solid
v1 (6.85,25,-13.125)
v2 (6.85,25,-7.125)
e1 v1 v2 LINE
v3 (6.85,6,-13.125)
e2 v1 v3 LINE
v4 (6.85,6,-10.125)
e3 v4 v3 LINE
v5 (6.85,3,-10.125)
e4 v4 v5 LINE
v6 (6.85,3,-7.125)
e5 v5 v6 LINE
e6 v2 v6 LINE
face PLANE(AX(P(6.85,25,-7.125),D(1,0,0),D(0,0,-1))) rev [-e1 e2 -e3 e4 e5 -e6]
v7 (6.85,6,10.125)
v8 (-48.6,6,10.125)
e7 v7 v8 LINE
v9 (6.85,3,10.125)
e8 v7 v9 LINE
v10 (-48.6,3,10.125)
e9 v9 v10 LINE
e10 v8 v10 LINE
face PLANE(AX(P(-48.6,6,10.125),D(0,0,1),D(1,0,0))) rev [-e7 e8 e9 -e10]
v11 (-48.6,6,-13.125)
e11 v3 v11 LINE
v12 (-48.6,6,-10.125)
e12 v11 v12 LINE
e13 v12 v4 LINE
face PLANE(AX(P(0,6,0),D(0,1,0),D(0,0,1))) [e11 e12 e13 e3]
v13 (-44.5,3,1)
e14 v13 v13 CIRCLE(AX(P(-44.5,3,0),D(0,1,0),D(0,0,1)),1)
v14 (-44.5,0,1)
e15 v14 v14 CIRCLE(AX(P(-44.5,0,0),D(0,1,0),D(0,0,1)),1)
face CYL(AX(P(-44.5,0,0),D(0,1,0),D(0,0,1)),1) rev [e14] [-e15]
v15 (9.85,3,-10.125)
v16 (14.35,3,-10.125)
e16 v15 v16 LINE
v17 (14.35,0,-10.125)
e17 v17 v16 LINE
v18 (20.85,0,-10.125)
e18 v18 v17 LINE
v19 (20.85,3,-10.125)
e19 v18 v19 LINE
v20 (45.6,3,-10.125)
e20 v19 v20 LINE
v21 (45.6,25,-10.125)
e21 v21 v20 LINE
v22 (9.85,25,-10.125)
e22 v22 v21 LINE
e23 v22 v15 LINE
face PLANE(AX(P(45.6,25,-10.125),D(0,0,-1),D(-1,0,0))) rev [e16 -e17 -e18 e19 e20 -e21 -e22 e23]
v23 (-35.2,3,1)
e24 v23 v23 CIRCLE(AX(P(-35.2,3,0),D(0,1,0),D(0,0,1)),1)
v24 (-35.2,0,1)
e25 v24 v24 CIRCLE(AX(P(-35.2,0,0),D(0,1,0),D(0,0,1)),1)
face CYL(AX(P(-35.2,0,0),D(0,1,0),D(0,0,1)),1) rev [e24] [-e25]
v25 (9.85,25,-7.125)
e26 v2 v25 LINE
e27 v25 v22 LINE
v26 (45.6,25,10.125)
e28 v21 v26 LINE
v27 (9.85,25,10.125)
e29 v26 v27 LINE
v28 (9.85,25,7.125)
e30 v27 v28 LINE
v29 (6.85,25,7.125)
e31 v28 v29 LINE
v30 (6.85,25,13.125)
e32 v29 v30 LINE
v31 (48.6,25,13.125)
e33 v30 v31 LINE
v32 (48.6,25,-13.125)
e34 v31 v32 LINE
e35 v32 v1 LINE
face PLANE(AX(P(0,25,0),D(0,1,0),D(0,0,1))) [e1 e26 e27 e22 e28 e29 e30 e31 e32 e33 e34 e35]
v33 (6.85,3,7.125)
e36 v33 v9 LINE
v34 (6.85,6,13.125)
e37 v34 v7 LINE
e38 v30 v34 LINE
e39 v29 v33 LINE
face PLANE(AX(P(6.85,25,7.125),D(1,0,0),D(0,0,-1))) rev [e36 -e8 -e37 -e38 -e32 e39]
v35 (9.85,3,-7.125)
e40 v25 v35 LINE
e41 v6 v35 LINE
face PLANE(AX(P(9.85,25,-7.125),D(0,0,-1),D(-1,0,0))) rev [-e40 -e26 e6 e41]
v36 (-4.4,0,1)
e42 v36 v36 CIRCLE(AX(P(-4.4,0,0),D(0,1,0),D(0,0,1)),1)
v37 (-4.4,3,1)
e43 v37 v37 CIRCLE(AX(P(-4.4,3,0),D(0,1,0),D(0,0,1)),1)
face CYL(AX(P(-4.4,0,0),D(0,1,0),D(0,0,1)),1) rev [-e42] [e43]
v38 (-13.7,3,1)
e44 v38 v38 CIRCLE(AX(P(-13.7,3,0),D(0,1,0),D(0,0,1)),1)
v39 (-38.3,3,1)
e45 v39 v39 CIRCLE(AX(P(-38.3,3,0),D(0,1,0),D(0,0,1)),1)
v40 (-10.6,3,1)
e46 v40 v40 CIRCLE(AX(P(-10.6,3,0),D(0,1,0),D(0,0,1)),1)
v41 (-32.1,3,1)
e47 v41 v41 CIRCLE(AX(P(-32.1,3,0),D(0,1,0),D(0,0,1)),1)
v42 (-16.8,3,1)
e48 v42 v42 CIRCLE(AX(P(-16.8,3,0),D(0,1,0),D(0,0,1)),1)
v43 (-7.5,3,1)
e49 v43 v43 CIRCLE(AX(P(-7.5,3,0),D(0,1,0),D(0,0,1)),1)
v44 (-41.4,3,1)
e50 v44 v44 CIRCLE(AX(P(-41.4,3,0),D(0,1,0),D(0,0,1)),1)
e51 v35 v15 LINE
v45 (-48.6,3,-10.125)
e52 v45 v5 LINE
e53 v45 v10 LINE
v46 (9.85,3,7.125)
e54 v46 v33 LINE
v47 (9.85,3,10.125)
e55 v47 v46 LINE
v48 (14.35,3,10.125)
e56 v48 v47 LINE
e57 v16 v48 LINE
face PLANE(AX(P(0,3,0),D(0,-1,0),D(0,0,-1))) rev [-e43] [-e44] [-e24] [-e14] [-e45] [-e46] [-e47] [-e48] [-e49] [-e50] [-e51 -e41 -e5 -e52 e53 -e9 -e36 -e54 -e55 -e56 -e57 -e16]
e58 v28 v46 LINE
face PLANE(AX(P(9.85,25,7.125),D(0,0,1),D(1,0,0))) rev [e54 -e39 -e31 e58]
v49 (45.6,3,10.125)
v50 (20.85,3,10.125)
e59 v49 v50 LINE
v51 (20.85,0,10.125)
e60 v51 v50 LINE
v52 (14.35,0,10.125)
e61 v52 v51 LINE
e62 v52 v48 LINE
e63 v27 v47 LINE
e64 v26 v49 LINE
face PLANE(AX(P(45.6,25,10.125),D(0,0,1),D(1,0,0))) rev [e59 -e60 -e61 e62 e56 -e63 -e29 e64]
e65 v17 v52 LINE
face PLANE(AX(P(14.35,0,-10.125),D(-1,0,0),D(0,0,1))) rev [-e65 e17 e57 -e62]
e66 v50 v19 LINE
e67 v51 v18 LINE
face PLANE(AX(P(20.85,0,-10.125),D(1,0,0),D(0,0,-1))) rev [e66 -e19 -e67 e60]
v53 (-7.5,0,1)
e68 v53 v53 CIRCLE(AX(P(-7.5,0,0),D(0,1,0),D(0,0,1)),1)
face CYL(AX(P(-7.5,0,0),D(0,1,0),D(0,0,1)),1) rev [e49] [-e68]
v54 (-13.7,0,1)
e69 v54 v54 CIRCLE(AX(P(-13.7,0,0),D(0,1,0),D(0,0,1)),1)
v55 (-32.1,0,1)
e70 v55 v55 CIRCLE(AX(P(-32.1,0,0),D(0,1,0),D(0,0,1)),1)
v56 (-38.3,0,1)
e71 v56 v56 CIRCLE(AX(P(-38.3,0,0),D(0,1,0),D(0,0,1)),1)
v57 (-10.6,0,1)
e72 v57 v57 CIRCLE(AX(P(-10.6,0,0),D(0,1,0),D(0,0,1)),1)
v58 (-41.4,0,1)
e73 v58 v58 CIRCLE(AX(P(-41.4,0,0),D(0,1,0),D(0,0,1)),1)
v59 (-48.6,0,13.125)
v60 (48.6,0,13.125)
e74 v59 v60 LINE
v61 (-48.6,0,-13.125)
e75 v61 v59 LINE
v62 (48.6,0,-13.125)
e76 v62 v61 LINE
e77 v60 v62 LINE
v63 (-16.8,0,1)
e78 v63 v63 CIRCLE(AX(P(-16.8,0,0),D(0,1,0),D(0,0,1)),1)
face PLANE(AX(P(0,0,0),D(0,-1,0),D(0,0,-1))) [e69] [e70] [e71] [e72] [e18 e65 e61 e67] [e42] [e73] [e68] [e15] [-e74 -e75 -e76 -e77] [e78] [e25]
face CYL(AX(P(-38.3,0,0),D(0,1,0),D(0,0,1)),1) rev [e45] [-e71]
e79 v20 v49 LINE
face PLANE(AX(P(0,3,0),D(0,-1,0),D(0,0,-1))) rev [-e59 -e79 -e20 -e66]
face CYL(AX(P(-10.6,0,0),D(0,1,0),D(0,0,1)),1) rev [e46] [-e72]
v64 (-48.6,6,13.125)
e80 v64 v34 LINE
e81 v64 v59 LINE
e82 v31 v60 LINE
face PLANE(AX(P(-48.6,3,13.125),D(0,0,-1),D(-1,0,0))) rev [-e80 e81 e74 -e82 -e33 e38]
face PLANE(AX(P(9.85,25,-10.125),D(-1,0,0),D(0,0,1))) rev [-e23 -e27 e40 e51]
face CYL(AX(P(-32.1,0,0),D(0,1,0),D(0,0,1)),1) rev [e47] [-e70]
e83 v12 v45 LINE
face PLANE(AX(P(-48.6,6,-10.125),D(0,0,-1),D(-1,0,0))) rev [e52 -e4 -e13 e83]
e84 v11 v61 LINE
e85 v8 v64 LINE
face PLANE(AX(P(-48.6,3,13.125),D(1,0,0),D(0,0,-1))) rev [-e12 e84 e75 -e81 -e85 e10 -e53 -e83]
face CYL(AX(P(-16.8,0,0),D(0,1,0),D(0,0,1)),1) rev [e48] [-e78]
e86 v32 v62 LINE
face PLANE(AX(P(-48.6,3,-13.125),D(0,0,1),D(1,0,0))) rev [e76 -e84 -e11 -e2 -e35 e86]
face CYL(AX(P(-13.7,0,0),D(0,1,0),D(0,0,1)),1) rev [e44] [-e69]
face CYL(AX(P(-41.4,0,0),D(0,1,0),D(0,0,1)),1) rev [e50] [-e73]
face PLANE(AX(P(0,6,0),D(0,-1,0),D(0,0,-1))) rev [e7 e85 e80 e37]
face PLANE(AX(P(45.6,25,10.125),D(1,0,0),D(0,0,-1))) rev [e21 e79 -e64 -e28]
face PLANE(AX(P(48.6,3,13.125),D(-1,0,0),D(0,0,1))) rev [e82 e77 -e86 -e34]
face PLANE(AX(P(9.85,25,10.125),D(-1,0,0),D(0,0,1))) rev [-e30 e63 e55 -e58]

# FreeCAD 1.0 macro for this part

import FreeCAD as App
import Part
import Sketcher

V = App.Vector
Q = App.Units.Quantity

doc = App.newDocument("Part")
body = doc.addObject("PartDesign::Body", "Body")

sketch1 = doc.addObject("Sketcher::SketchObject", "Sketch")
body.addObject(sketch1)
sketch1.AttachmentSupport = (doc.XZ_Plane, [""])
sketch1.MapMode = "FlatFace"
sketch1.addGeometry([
    Part.LineSegment(V(-48.6, -13.125, 0), V(-48.6, 13.125, 0)),
    Part.LineSegment(V(-48.6, 13.125, 0), V(48.6, 13.125, 0)),
    Part.LineSegment(V(48.6, 13.125, 0), V(48.6, -13.125, 0)),
    Part.LineSegment(V(48.6, -13.125, 0), V(-48.6, -13.125, 0)),
], False)
sketch1.addConstraint([
    Sketcher.Constraint("Coincident", 0, 2, 1, 1),
    Sketcher.Constraint("Coincident", 1, 2, 2, 1),
    Sketcher.Constraint("Coincident", 2, 2, 3, 1),
    Sketcher.Constraint("Coincident", 3, 2, 0, 1),
    Sketcher.Constraint("Vertical", 0),
    Sketcher.Constraint("Horizontal", 1),
    Sketcher.Constraint("Vertical", 2),
    Sketcher.Constraint("Horizontal", 3),
    Sketcher.Constraint("Symmetric", 0, 2, 2, 2, -1, 1),
    Sketcher.Constraint("DistanceX", 1, 1, 1, 2, Q("97.2 mm")),
    Sketcher.Constraint("DistanceY", 0, 1, 0, 2, Q("26.25 mm")),
])
pad1 = doc.addObject("PartDesign::Pad", "Pad")
body.addObject(pad1)
pad1.Profile = sketch1
pad1.Length = 3
pad1.Reversed = True

sketch2 = doc.addObject("Sketcher::SketchObject", "Sketch001")
body.addObject(sketch2)
sketch2.AttachmentSupport = (doc.XZ_Plane, [""])
sketch2.MapMode = "FlatFace"
sketch2.AttachmentOffset = App.Placement(V(0, 0, -3), App.Rotation())
sketch2.addGeometry([
    Part.LineSegment(V(6.85, 13.125, 0), V(48.6, 13.125, 0)),
    Part.LineSegment(V(48.6, 13.125, 0), V(48.6, -13.125, 0)),
    Part.LineSegment(V(48.6, -13.125, 0), V(6.85, -13.125, 0)),
    Part.LineSegment(V(6.85, -13.125, 0), V(6.85, -7.125, 0)),
    Part.LineSegment(V(6.85, -7.125, 0), V(9.85, -7.125, 0)),
    Part.LineSegment(V(9.85, -7.125, 0), V(9.85, -10.125, 0)),
    Part.LineSegment(V(9.85, -10.125, 0), V(45.6, -10.125, 0)),
    Part.LineSegment(V(45.6, -10.125, 0), V(45.6, 10.125, 0)),
    Part.LineSegment(V(45.6, 10.125, 0), V(9.85, 10.125, 0)),
    Part.LineSegment(V(9.85, 10.125, 0), V(9.85, 7.125, 0)),
    Part.LineSegment(V(9.85, 7.125, 0), V(6.85, 7.125, 0)),
    Part.LineSegment(V(6.85, 7.125, 0), V(6.85, 13.125, 0)),
], False)
sketch2.addConstraint([
    Sketcher.Constraint("Coincident", 0, 2, 1, 1),
    Sketcher.Constraint("Coincident", 1, 2, 2, 1),
    Sketcher.Constraint("Coincident", 2, 2, 3, 1),
    Sketcher.Constraint("Coincident", 3, 2, 4, 1),
    Sketcher.Constraint("Coincident", 4, 2, 5, 1),
    Sketcher.Constraint("Coincident", 5, 2, 6, 1),
    Sketcher.Constraint("Coincident", 6, 2, 7, 1),
    Sketcher.Constraint("Coincident", 7, 2, 8, 1),
    Sketcher.Constraint("Coincident", 8, 2, 9, 1),
    Sketcher.Constraint("Coincident", 9, 2, 10, 1),
    Sketcher.Constraint("Coincident", 10, 2, 11, 1),
    Sketcher.Constraint("Coincident", 11, 2, 0, 1),
    Sketcher.Constraint("Horizontal", 0),
    Sketcher.Constraint("Vertical", 1),
    Sketcher.Constraint("Horizontal", 2),
    Sketcher.Constraint("Vertical", 3),
    Sketcher.Constraint("Horizontal", 4),
    Sketcher.Constraint("Vertical", 5),
    Sketcher.Constraint("Horizontal", 6),
    Sketcher.Constraint("Vertical", 7),
    Sketcher.Constraint("Horizontal", 8),
    Sketcher.Constraint("Vertical", 9),
    Sketcher.Constraint("Horizontal", 10),
    Sketcher.Constraint("Vertical", 11),
    Sketcher.Constraint("Symmetric", 5, 2, 8, 2, -1),
    Sketcher.Constraint("Symmetric", 3, 2, 10, 2, -1),
    Sketcher.Constraint("Equal", 10, 5),
    Sketcher.Constraint("Equal", 3, 11),
    Sketcher.Constraint("DistanceX", 4, 1, 4, 2, Q("3 mm")),
    Sketcher.Constraint("DistanceY", 3, 1, 3, 2, Q("6 mm")),
    Sketcher.Constraint("DistanceX", 6, 2, 1, 2, Q("3 mm")),
    Sketcher.Constraint("DistanceX", 0, 1, 0, 2, Q("41.75 mm")),
    Sketcher.Constraint("DistanceY", 1, 2, 1, 1, Q("26.25 mm")),
    Sketcher.Constraint("DistanceX", -1, 1, 0, 2, Q("48.6 mm")),
])
pad2 = doc.addObject("PartDesign::Pad", "Pad001")
body.addObject(pad2)
pad2.Profile = sketch2
pad2.Length = 22
pad2.Reversed = True

sketch3 = doc.addObject("Sketcher::SketchObject", "Sketch002")
body.addObject(sketch3)
sketch3.AttachmentSupport = (doc.XZ_Plane, [""])
sketch3.MapMode = "FlatFace"
sketch3.AttachmentOffset = App.Placement(V(0, 0, -3), App.Rotation())
sketch3.addGeometry([
    Part.LineSegment(V(14.35, -10.125, 0), V(14.35, 10.125, 0)),
    Part.LineSegment(V(14.35, 10.125, 0), V(20.85, 10.125, 0)),
    Part.LineSegment(V(20.85, 10.125, 0), V(20.85, -10.125, 0)),
    Part.LineSegment(V(20.85, -10.125, 0), V(14.35, -10.125, 0)),
], False)
sketch3.addConstraint([
    Sketcher.Constraint("Coincident", 0, 2, 1, 1),
    Sketcher.Constraint("Coincident", 1, 2, 2, 1),
    Sketcher.Constraint("Coincident", 2, 2, 3, 1),
    Sketcher.Constraint("Coincident", 3, 2, 0, 1),
    Sketcher.Constraint("Vertical", 0),
    Sketcher.Constraint("Horizontal", 1),
    Sketcher.Constraint("Vertical", 2),
    Sketcher.Constraint("Horizontal", 3),
    Sketcher.Constraint("DistanceX", 1, 1, 1, 2, Q("6.5 mm")),
    Sketcher.Constraint("DistanceY", 0, 1, 0, 2, Q("20.25 mm")),
    Sketcher.Constraint("DistanceX", -1, 1, 0, 2, Q("14.35 mm")),
    Sketcher.Constraint("DistanceY", -1, 1, 0, 2, Q("10.125 mm")),
])
pocket1 = doc.addObject("PartDesign::Pocket", "Pocket")
body.addObject(pocket1)
pocket1.Profile = sketch3
pocket1.Type = "ThroughAll"
pocket1.Reversed = True

sketch4 = doc.addObject("Sketcher::SketchObject", "Sketch003")
body.addObject(sketch4)
sketch4.AttachmentSupport = (doc.XZ_Plane, [""])
sketch4.MapMode = "FlatFace"
sketch4.AttachmentOffset = App.Placement(V(0, 0, -3), App.Rotation())
sketch4.addGeometry([
    Part.Circle(V(-32.1, 0, 0), V(0, 0, 1), 1),
    Part.Circle(V(-16.8, 0, 0), V(0, 0, 1), 1),
    Part.Circle(V(-13.7, 0, 0), V(0, 0, 1), 1),
    Part.Circle(V(-10.6, 0, 0), V(0, 0, 1), 1),
    Part.Circle(V(-7.5, 0, 0), V(0, 0, 1), 1),
    Part.Circle(V(-4.4, 0, 0), V(0, 0, 1), 1),
    Part.Circle(V(-35.2, 0, 0), V(0, 0, 1), 1),
    Part.Circle(V(-38.3, 0, 0), V(0, 0, 1), 1),
    Part.Circle(V(-41.4, 0, 0), V(0, 0, 1), 1),
    Part.Circle(V(-44.5, 0, 0), V(0, 0, 1), 1),
], False)
sketch4.addConstraint([
    Sketcher.Constraint("Equal", 0, 1),
    Sketcher.Constraint("Equal", 1, 2),
    Sketcher.Constraint("Equal", 2, 3),
    Sketcher.Constraint("Equal", 3, 4),
    Sketcher.Constraint("Equal", 4, 5),
    Sketcher.Constraint("Equal", 5, 6),
    Sketcher.Constraint("Equal", 6, 7),
    Sketcher.Constraint("Equal", 7, 8),
    Sketcher.Constraint("Equal", 8, 9),
    Sketcher.Constraint("PointOnObject", 0, 3, -1),
    Sketcher.Constraint("PointOnObject", 1, 3, -1),
    Sketcher.Constraint("PointOnObject", 2, 3, -1),
    Sketcher.Constraint("PointOnObject", 3, 3, -1),
    Sketcher.Constraint("PointOnObject", 4, 3, -1),
    Sketcher.Constraint("PointOnObject", 5, 3, -1),
    Sketcher.Constraint("PointOnObject", 6, 3, -1),
    Sketcher.Constraint("PointOnObject", 7, 3, -1),
    Sketcher.Constraint("PointOnObject", 8, 3, -1),
    Sketcher.Constraint("PointOnObject", 9, 3, -1),
    Sketcher.Constraint("Diameter", 0, Q("2 mm")),
    Sketcher.Constraint("DistanceX", 0, 3, -1, 1, Q("32.1 mm")),
    Sketcher.Constraint("DistanceX", 1, 3, -1, 1, Q("16.8 mm")),
    Sketcher.Constraint("DistanceX", 2, 3, -1, 1, Q("13.7 mm")),
    Sketcher.Constraint("DistanceX", 3, 3, -1, 1, Q("10.6 mm")),
    Sketcher.Constraint("DistanceX", 4, 3, -1, 1, Q("7.5 mm")),
    Sketcher.Constraint("DistanceX", 5, 3, -1, 1, Q("4.4 mm")),
    Sketcher.Constraint("DistanceX", 6, 3, -1, 1, Q("35.2 mm")),
    Sketcher.Constraint("DistanceX", 7, 3, -1, 1, Q("38.3 mm")),
    Sketcher.Constraint("DistanceX", 8, 3, -1, 1, Q("41.4 mm")),
    Sketcher.Constraint("DistanceX", 9, 3, -1, 1, Q("44.5 mm")),
])
pocket2 = doc.addObject("PartDesign::Pocket", "Pocket001")
body.addObject(pocket2)
pocket2.Profile = sketch4
pocket2.Type = "ThroughAll"
pocket2.Reversed = True

sketch5 = doc.addObject("Sketcher::SketchObject", "Sketch004")
body.addObject(sketch5)
sketch5.AttachmentSupport = (doc.XZ_Plane, [""])
sketch5.MapMode = "FlatFace"
sketch5.AttachmentOffset = App.Placement(V(0, 0, -3), App.Rotation())
sketch5.addGeometry([
    Part.LineSegment(V(-48.6, -13.125, 0), V(-48.6, -10.125, 0)),
    Part.LineSegment(V(-48.6, -10.125, 0), V(6.85, -10.125, 0)),
    Part.LineSegment(V(6.85, -10.125, 0), V(6.85, -13.125, 0)),
    Part.LineSegment(V(6.85, -13.125, 0), V(-48.6, -13.125, 0)),
    Part.LineSegment(V(-48.6, 10.125, 0), V(-48.6, 13.125, 0)),
    Part.LineSegment(V(-48.6, 13.125, 0), V(6.85, 13.125, 0)),
    Part.LineSegment(V(6.85, 13.125, 0), V(6.85, 10.125, 0)),
    Part.LineSegment(V(6.85, 10.125, 0), V(-48.6, 10.125, 0)),
], False)
sketch5.addConstraint([
    Sketcher.Constraint("Coincident", 0, 2, 1, 1),
    Sketcher.Constraint("Coincident", 1, 2, 2, 1),
    Sketcher.Constraint("Coincident", 2, 2, 3, 1),
    Sketcher.Constraint("Coincident", 3, 2, 0, 1),
    Sketcher.Constraint("Coincident", 4, 2, 5, 1),
    Sketcher.Constraint("Coincident", 5, 2, 6, 1),
    Sketcher.Constraint("Coincident", 6, 2, 7, 1),
    Sketcher.Constraint("Coincident", 7, 2, 4, 1),
    Sketcher.Constraint("Vertical", 0),
    Sketcher.Constraint("Horizontal", 1),
    Sketcher.Constraint("Vertical", 2),
    Sketcher.Constraint("Horizontal", 3),
    Sketcher.Constraint("Vertical", 4),
    Sketcher.Constraint("Horizontal", 5),
    Sketcher.Constraint("Vertical", 6),
    Sketcher.Constraint("Horizontal", 7),
    Sketcher.Constraint("Symmetric", 3, 2, 4, 2, -1),
    Sketcher.Constraint("Symmetric", 1, 2, 6, 2, -1),
    Sketcher.Constraint("DistanceY", 0, 1, 0, 2, Q("3 mm")),
    Sketcher.Constraint("DistanceX", 1, 1, 1, 2, Q("55.45 mm")),
    Sketcher.Constraint("DistanceX", 0, 2, -1, 1, Q("48.6 mm")),
    Sketcher.Constraint("DistanceY", 0, 2, 4, 2, Q("23.25 mm")),
])
pad3 = doc.addObject("PartDesign::Pad", "Pad002")
body.addObject(pad3)
pad3.Profile = sketch5
pad3.Length = 3
pad3.Reversed = True

doc.recompute()
